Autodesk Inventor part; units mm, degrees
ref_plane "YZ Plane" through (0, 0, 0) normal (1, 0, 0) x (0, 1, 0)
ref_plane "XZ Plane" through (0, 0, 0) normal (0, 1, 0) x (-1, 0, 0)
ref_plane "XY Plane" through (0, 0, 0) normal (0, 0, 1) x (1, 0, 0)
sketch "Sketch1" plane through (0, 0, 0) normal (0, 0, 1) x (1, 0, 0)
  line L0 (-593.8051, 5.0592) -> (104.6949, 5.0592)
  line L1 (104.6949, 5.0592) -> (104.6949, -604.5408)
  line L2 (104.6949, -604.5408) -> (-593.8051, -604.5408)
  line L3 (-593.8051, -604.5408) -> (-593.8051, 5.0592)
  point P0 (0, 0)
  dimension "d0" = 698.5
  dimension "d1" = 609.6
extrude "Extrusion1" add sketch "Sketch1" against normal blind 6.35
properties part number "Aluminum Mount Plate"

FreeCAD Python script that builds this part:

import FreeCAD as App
import Part
import Sketcher
from FreeCAD import Vector
Q = App.Units.Quantity

doc = App.newDocument("Part")
body = doc.addObject("PartDesign::Body", "Body")

sketch1 = doc.addObject("Sketcher::SketchObject", "Sketch")
body.addObject(sketch1)
sketch1.AttachmentSupport = (doc.XY_Plane, [""])
sketch1.MapMode = "FlatFace"
sketch1.addGeometry(Part.LineSegment(Vector(105, 5, 0), Vector(-594, 5, 0)), False)
sketch1.addGeometry(Part.LineSegment(Vector(-594, 5, 0), Vector(-594, -605, 0)), False)
sketch1.addGeometry(Part.LineSegment(Vector(-594, -605, 0), Vector(105, -605, 0)), False)
sketch1.addGeometry(Part.LineSegment(Vector(105, -605, 0), Vector(105, 5, 0)), False)
sketch1.addConstraint(Sketcher.Constraint("Coincident", 0, 2, 1, 1))
sketch1.addConstraint(Sketcher.Constraint("Coincident", 1, 2, 2, 1))
sketch1.addConstraint(Sketcher.Constraint("Coincident", 2, 2, 3, 1))
sketch1.addConstraint(Sketcher.Constraint("Coincident", 3, 2, 0, 1))
sketch1.addConstraint(Sketcher.Constraint("Horizontal", 0))
sketch1.addConstraint(Sketcher.Constraint("Vertical", 1))
sketch1.addConstraint(Sketcher.Constraint("Horizontal", 2))
sketch1.addConstraint(Sketcher.Constraint("Vertical", 3))
sketch1.addConstraint(Sketcher.Constraint("DistanceY", 1, 2, 1, 1, Q("24 in")))
sketch1.addConstraint(Sketcher.Constraint("DistanceX", 0, 2, 0, 1, Q("27.5 in")))
sketch1.addConstraint(Sketcher.Constraint("DistanceX", 0, 2, -1, 1, Q("593.805 mm")))
sketch1.addConstraint(Sketcher.Constraint("DistanceY", -1, 1, 0, 2, Q("5.0592 mm")))
pad1 = doc.addObject("PartDesign::Pad", "Pad")
body.addObject(pad1)
pad1.Profile = sketch1
pad1.Length = Q("0.25 in")
pad1.Reversed = True

doc.recompute()
